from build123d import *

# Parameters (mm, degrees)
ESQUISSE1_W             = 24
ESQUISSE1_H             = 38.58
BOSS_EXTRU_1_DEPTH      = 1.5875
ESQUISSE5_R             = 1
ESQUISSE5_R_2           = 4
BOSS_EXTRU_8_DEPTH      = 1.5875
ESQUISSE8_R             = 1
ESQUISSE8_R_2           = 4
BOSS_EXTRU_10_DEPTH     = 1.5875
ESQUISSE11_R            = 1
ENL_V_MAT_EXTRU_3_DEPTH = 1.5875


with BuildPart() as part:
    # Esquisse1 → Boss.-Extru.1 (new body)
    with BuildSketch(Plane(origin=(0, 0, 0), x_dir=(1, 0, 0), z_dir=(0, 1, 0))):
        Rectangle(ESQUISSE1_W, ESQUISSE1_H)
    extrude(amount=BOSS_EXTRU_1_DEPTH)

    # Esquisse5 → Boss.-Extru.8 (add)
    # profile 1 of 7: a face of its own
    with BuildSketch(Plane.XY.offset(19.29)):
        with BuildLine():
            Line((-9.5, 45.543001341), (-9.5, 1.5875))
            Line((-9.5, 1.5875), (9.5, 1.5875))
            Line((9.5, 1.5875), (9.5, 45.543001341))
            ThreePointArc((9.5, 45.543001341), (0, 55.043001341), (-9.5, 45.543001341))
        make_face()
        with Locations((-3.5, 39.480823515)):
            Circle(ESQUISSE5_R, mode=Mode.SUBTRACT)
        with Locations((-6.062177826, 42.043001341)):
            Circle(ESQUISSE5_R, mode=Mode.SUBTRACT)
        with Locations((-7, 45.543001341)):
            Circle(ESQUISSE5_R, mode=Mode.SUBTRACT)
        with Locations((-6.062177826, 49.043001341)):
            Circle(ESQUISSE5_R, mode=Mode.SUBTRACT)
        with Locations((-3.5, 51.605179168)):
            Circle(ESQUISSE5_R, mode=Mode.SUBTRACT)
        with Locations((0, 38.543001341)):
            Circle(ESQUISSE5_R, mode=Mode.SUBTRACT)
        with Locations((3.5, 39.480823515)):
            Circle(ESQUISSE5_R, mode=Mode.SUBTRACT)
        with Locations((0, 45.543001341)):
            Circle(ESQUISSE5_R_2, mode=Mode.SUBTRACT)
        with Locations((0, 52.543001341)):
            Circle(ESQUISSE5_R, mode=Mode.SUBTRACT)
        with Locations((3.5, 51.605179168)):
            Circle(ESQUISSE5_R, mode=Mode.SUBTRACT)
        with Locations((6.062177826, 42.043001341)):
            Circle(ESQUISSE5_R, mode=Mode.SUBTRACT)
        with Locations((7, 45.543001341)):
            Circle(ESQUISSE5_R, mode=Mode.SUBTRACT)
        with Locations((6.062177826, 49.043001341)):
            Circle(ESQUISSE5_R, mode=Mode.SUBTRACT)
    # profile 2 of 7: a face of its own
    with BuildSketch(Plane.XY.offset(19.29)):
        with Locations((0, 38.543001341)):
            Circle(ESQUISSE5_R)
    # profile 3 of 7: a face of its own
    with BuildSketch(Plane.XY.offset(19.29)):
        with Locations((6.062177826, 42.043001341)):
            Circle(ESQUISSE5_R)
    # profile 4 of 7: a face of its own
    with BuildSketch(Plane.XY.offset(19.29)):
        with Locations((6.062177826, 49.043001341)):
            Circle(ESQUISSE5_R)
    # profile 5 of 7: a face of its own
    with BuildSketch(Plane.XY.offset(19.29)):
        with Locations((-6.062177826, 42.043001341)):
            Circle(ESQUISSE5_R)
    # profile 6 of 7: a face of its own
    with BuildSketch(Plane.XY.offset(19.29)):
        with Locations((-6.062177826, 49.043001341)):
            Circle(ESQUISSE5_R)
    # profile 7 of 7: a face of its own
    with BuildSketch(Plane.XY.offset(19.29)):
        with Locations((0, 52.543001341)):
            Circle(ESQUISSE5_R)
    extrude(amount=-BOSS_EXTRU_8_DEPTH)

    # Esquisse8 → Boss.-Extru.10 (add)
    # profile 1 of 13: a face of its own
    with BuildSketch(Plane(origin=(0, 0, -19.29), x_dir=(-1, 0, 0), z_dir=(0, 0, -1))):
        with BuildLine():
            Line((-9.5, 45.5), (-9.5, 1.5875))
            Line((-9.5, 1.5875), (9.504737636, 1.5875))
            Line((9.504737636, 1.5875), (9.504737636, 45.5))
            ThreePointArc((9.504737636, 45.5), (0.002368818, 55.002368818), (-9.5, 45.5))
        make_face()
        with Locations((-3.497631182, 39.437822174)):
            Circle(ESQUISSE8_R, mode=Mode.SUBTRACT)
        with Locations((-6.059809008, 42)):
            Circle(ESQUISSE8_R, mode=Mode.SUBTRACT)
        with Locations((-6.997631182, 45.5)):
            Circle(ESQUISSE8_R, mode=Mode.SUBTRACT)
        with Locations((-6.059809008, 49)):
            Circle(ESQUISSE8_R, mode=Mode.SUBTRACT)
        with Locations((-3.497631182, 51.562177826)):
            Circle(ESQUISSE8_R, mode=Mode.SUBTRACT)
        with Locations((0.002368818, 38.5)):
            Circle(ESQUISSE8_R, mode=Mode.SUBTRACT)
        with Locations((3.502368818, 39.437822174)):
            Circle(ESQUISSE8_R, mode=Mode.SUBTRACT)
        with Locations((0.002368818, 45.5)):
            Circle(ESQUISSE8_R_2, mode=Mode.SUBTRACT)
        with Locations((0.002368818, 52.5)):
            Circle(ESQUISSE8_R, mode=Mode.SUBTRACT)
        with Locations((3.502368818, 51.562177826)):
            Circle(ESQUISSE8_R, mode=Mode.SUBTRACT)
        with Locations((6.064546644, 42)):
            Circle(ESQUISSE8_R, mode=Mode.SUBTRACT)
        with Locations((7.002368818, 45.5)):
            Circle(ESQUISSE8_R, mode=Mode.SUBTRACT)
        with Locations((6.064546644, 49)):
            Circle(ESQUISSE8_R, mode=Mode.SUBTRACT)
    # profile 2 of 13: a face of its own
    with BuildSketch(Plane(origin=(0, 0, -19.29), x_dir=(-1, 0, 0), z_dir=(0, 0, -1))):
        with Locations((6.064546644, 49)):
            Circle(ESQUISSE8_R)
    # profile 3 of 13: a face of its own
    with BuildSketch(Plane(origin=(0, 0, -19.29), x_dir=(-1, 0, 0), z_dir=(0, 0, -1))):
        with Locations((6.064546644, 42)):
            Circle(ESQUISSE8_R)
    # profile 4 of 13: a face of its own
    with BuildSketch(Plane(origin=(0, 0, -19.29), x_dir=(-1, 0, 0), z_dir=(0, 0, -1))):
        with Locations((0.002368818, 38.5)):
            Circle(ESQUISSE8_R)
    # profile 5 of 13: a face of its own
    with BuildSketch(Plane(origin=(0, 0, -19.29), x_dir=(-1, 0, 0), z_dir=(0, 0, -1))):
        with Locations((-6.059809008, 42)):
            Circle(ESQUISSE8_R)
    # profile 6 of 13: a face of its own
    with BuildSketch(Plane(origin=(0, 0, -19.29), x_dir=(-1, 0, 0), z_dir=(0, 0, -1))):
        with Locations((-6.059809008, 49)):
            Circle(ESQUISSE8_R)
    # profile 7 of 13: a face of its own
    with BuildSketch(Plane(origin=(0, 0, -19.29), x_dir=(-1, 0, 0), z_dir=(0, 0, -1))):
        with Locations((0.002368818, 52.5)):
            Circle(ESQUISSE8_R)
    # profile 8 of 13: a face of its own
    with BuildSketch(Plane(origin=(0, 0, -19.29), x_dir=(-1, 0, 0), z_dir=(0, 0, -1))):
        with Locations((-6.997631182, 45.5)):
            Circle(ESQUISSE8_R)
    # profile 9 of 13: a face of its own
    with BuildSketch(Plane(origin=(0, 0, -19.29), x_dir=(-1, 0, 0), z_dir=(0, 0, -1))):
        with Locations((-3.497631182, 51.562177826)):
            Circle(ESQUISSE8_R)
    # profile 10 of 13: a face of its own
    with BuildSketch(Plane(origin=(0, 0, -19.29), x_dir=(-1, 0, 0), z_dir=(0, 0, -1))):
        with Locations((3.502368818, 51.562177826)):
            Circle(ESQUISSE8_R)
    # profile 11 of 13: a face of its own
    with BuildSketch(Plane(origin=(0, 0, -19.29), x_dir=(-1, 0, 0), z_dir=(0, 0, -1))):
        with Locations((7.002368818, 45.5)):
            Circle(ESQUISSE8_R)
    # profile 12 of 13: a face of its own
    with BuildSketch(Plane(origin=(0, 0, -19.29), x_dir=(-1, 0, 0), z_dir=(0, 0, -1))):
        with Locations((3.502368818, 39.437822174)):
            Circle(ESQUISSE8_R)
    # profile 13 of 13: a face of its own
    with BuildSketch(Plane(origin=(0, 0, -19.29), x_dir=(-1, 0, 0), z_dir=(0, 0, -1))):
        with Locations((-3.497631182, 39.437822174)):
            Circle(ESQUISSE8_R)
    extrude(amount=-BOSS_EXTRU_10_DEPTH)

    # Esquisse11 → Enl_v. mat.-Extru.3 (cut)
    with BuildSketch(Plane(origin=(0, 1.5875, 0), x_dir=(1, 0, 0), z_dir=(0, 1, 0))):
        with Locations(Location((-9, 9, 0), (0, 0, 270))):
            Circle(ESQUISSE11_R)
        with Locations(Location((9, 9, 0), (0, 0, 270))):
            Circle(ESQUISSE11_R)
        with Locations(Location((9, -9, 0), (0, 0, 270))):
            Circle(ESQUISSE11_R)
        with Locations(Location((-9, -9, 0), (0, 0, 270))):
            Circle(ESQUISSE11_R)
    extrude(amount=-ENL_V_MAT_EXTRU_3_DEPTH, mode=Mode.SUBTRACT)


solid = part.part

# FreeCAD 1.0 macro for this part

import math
import FreeCAD as App
import Part
import Sketcher

doc = App.newDocument("Part")
body = doc.addObject("PartDesign::Body", "Body")

sketch1 = doc.addObject("Sketcher::SketchObject", "Sketch")
body.addObject(sketch1)
sketch1.AttachmentSupport = (doc.XZ_Plane, [""])
sketch1.MapMode = "FlatFace"
sketch1.addGeometry(Part.LineSegment(App.Vector(-12, -19, 0), App.Vector(-12, 19, 0)), False)
sketch1.addGeometry(Part.LineSegment(App.Vector(-12, 19, 0), App.Vector(12, 19, 0)), False)
sketch1.addGeometry(Part.LineSegment(App.Vector(12, 19, 0), App.Vector(12, -19, 0)), False)
sketch1.addGeometry(Part.LineSegment(App.Vector(12, -19, 0), App.Vector(-12, -19, 0)), False)
sketch1.addConstraint(Sketcher.Constraint("Coincident", 0, 2, 1, 1))
sketch1.addConstraint(Sketcher.Constraint("Coincident", 1, 2, 2, 1))
sketch1.addConstraint(Sketcher.Constraint("Coincident", 2, 2, 3, 1))
sketch1.addConstraint(Sketcher.Constraint("Coincident", 3, 2, 0, 1))
sketch1.addConstraint(Sketcher.Constraint("Vertical", 0))
sketch1.addConstraint(Sketcher.Constraint("Horizontal", 1))
sketch1.addConstraint(Sketcher.Constraint("Vertical", 2))
sketch1.addConstraint(Sketcher.Constraint("Horizontal", 3))
sketch1.addConstraint(Sketcher.Constraint("Symmetric", 0, 2, 2, 2, -1, 1))
sketch1.addConstraint(Sketcher.Constraint("DistanceX", 1, 1, 1, 2, 24.0))
sketch1.addConstraint(Sketcher.Constraint("DistanceY", 0, 1, 0, 2, 38.58))
pad1 = doc.addObject("PartDesign::Pad", "Pad")
body.addObject(pad1)
pad1.Profile = sketch1
pad1.Length = 1.5875
pad1.Reversed = True

sketch2 = doc.addObject("Sketcher::SketchObject", "Sketch001")
body.addObject(sketch2)
sketch2.AttachmentSupport = (doc.XY_Plane, [""])
sketch2.MapMode = "FlatFace"
sketch2.AttachmentOffset = App.Placement(App.Vector(0, 0, 19.29), App.Rotation())
sketch2.addGeometry(Part.LineSegment(App.Vector(-9.5, 45.5, 0), App.Vector(-9.5, 1.6, 0)), False)
sketch2.addGeometry(Part.LineSegment(App.Vector(-9.5, 1.6, 0), App.Vector(9.5, 1.6, 0)), False)
sketch2.addGeometry(Part.LineSegment(App.Vector(9.5, 1.6, 0), App.Vector(9.5, 45.5, 0)), False)
sketch2.addGeometry(Part.ArcOfCircle(Part.Circle(App.Vector(0, 45.5, 0), App.Vector(0, 0, 1), 9.5), math.radians(0), math.radians(180)), False)
sketch2.addGeometry(Part.Circle(App.Vector(-3.5, 39.5, 0), App.Vector(0, 0, 1), 1), False)
sketch2.addGeometry(Part.Circle(App.Vector(3.5, 39.5, 0), App.Vector(0, 0, 1), 1), False)
sketch2.addGeometry(Part.Circle(App.Vector(-7, 45.5, 0), App.Vector(0, 0, 1), 1), False)
sketch2.addGeometry(Part.Circle(App.Vector(-3.5, 51.6, 0), App.Vector(0, 0, 1), 1), False)
sketch2.addGeometry(Part.Circle(App.Vector(0, 45.5, 0), App.Vector(0, 0, 1), 4), False)
sketch2.addGeometry(Part.Circle(App.Vector(7, 45.5, 0), App.Vector(0, 0, 1), 1), False)
sketch2.addGeometry(Part.Circle(App.Vector(3.5, 51.6, 0), App.Vector(0, 0, 1), 1), False)
sketch2.addConstraint(Sketcher.Constraint("Coincident", 0, 2, 1, 1))
sketch2.addConstraint(Sketcher.Constraint("Coincident", 1, 2, 2, 1))
sketch2.addConstraint(Sketcher.Constraint("Tangent", 2, 2, 3, 1))
sketch2.addConstraint(Sketcher.Constraint("Tangent", 3, 2, 0, 1))
sketch2.addConstraint(Sketcher.Constraint("Vertical", 0))
sketch2.addConstraint(Sketcher.Constraint("Horizontal", 1))
sketch2.addConstraint(Sketcher.Constraint("Vertical", 2))
sketch2.addConstraint(Sketcher.Constraint("Coincident", 8, 3, 3, 3))
sketch2.addConstraint(Sketcher.Constraint("Equal", 4, 5))
sketch2.addConstraint(Sketcher.Constraint("Equal", 5, 6))
sketch2.addConstraint(Sketcher.Constraint("Equal", 6, 7))
sketch2.addConstraint(Sketcher.Constraint("Equal", 7, 9))
sketch2.addConstraint(Sketcher.Constraint("Equal", 9, 10))
sketch2.addConstraint(Sketcher.Constraint("Symmetric", 4, 3, 5, 3, -2))
sketch2.addConstraint(Sketcher.Constraint("Symmetric", 6, 3, 9, 3, -2))
sketch2.addConstraint(Sketcher.Constraint("Symmetric", 7, 3, 10, 3, -2))
sketch2.addConstraint(Sketcher.Constraint("PointOnObject", 3, 3, -2))
sketch2.addConstraint(Sketcher.Constraint("Horizontal", 3, 3, 6, 3))
sketch2.addConstraint(Sketcher.Constraint("Vertical", 4, 3, 7, 3))
sketch2.addConstraint(Sketcher.Constraint("Diameter", 4, 2.0))
sketch2.addConstraint(Sketcher.Constraint("Diameter", 8, 8.0))
sketch2.addConstraint(Sketcher.Constraint("Radius", 3, 9.5))
sketch2.addConstraint(Sketcher.Constraint("DistanceX", 6, 3, -1, 1, 7.0))
sketch2.addConstraint(Sketcher.Constraint("DistanceX", 4, 3, 5, 3, 7.0))
sketch2.addConstraint(Sketcher.Constraint("DistanceY", 0, 2, 0, 1, 43.955501))
sketch2.addConstraint(Sketcher.Constraint("DistanceY", -1, 1, 3, 3, 45.543001))
sketch2.addConstraint(Sketcher.Constraint("DistanceY", -1, 1, 7, 3, 51.605179))
sketch2.addConstraint(Sketcher.Constraint("DistanceY", -1, 1, 4, 3, 39.480824))
pad2 = doc.addObject("PartDesign::Pad", "Pad001")
body.addObject(pad2)
pad2.Profile = sketch2
pad2.Length = 1.5875
pad2.Reversed = True

sketch3 = doc.addObject("Sketcher::SketchObject", "Sketch002")
body.addObject(sketch3)
sketch3.AttachmentSupport = (doc.XY_Plane, [""])
sketch3.MapMode = "FlatFace"
sketch3.AttachmentOffset = App.Placement(App.Vector(0, 0, -19.29), App.Rotation())
sketch3.addGeometry(Part.LineSegment(App.Vector(9.5, 45.5, 0), App.Vector(9.5, 1.6, 0)), False)
sketch3.addGeometry(Part.LineSegment(App.Vector(9.5, 1.6, 0), App.Vector(-9.5, 1.6, 0)), False)
sketch3.addGeometry(Part.LineSegment(App.Vector(-9.5, 1.6, 0), App.Vector(-9.5, 45.5, 0)), False)
sketch3.addGeometry(Part.ArcOfCircle(Part.Circle(App.Vector(0, 45.5, 0), App.Vector(0, 0, 1), 9.5), math.radians(0), math.radians(180)), False)
sketch3.addGeometry(Part.Circle(App.Vector(0, 45.5, 0), App.Vector(0, 0, 1), 4), False)
sketch3.addConstraint(Sketcher.Constraint("Coincident", 0, 2, 1, 1))
sketch3.addConstraint(Sketcher.Constraint("Coincident", 1, 2, 2, 1))
sketch3.addConstraint(Sketcher.Constraint("Tangent", 2, 2, 3, 2))
sketch3.addConstraint(Sketcher.Constraint("Tangent", 3, 1, 0, 1))
sketch3.addConstraint(Sketcher.Constraint("Vertical", 0))
sketch3.addConstraint(Sketcher.Constraint("Horizontal", 1))
sketch3.addConstraint(Sketcher.Constraint("Vertical", 2))
sketch3.addConstraint(Sketcher.Constraint("Coincident", 4, 3, 3, 3))
sketch3.addConstraint(Sketcher.Constraint("Diameter", 4, 8.0))
sketch3.addConstraint(Sketcher.Constraint("DistanceY", -1, 1, 3, 3, 45.5))
sketch3.addConstraint(Sketcher.Constraint("DistanceX", -1, 1, 0, 2, 9.5))
sketch3.addConstraint(Sketcher.Constraint("Radius", 3, 9.502369))
sketch3.addConstraint(Sketcher.Constraint("DistanceY", 0, 2, 0, 1, 43.9125))
pad3 = doc.addObject("PartDesign::Pad", "Pad002")
body.addObject(pad3)
pad3.Profile = sketch3
pad3.Length = 1.5875

sketch4 = doc.addObject("Sketcher::SketchObject", "Sketch003")
body.addObject(sketch4)
sketch4.AttachmentSupport = (doc.XZ_Plane, [""])
sketch4.MapMode = "FlatFace"
sketch4.AttachmentOffset = App.Placement(App.Vector(0, 0, -1.5875), App.Rotation())
sketch4.addGeometry(Part.Circle(App.Vector(-9, -9, 0), App.Vector(0, 0, 1), 1), False)
sketch4.addGeometry(Part.Circle(App.Vector(9, -9, 0), App.Vector(0, 0, 1), 1), False)
sketch4.addGeometry(Part.Circle(App.Vector(9, 9, 0), App.Vector(0, 0, 1), 1), False)
sketch4.addGeometry(Part.Circle(App.Vector(-9, 9, 0), App.Vector(0, 0, 1), 1), False)
sketch4.addConstraint(Sketcher.Constraint("Equal", 0, 1))
sketch4.addConstraint(Sketcher.Constraint("Equal", 1, 2))
sketch4.addConstraint(Sketcher.Constraint("Equal", 2, 3))
sketch4.addConstraint(Sketcher.Constraint("Symmetric", 0, 3, 2, 3, -1, 1))
sketch4.addConstraint(Sketcher.Constraint("Symmetric", 1, 3, 3, 3, -1, 1))
sketch4.addConstraint(Sketcher.Constraint("Symmetric", 0, 3, 1, 3, -2))
sketch4.addConstraint(Sketcher.Constraint("Diameter", 0, 2.0))
sketch4.addConstraint(Sketcher.Constraint("DistanceX", 0, 3, -1, 1, 9.0))
sketch4.addConstraint(Sketcher.Constraint("DistanceY", 0, 3, -1, 1, 9.0))
pocket1 = doc.addObject("PartDesign::Pocket", "Pocket")
body.addObject(pocket1)
pocket1.Profile = sketch4
pocket1.Length = 1.5875
pocket1.Reversed = True

doc.recompute()
